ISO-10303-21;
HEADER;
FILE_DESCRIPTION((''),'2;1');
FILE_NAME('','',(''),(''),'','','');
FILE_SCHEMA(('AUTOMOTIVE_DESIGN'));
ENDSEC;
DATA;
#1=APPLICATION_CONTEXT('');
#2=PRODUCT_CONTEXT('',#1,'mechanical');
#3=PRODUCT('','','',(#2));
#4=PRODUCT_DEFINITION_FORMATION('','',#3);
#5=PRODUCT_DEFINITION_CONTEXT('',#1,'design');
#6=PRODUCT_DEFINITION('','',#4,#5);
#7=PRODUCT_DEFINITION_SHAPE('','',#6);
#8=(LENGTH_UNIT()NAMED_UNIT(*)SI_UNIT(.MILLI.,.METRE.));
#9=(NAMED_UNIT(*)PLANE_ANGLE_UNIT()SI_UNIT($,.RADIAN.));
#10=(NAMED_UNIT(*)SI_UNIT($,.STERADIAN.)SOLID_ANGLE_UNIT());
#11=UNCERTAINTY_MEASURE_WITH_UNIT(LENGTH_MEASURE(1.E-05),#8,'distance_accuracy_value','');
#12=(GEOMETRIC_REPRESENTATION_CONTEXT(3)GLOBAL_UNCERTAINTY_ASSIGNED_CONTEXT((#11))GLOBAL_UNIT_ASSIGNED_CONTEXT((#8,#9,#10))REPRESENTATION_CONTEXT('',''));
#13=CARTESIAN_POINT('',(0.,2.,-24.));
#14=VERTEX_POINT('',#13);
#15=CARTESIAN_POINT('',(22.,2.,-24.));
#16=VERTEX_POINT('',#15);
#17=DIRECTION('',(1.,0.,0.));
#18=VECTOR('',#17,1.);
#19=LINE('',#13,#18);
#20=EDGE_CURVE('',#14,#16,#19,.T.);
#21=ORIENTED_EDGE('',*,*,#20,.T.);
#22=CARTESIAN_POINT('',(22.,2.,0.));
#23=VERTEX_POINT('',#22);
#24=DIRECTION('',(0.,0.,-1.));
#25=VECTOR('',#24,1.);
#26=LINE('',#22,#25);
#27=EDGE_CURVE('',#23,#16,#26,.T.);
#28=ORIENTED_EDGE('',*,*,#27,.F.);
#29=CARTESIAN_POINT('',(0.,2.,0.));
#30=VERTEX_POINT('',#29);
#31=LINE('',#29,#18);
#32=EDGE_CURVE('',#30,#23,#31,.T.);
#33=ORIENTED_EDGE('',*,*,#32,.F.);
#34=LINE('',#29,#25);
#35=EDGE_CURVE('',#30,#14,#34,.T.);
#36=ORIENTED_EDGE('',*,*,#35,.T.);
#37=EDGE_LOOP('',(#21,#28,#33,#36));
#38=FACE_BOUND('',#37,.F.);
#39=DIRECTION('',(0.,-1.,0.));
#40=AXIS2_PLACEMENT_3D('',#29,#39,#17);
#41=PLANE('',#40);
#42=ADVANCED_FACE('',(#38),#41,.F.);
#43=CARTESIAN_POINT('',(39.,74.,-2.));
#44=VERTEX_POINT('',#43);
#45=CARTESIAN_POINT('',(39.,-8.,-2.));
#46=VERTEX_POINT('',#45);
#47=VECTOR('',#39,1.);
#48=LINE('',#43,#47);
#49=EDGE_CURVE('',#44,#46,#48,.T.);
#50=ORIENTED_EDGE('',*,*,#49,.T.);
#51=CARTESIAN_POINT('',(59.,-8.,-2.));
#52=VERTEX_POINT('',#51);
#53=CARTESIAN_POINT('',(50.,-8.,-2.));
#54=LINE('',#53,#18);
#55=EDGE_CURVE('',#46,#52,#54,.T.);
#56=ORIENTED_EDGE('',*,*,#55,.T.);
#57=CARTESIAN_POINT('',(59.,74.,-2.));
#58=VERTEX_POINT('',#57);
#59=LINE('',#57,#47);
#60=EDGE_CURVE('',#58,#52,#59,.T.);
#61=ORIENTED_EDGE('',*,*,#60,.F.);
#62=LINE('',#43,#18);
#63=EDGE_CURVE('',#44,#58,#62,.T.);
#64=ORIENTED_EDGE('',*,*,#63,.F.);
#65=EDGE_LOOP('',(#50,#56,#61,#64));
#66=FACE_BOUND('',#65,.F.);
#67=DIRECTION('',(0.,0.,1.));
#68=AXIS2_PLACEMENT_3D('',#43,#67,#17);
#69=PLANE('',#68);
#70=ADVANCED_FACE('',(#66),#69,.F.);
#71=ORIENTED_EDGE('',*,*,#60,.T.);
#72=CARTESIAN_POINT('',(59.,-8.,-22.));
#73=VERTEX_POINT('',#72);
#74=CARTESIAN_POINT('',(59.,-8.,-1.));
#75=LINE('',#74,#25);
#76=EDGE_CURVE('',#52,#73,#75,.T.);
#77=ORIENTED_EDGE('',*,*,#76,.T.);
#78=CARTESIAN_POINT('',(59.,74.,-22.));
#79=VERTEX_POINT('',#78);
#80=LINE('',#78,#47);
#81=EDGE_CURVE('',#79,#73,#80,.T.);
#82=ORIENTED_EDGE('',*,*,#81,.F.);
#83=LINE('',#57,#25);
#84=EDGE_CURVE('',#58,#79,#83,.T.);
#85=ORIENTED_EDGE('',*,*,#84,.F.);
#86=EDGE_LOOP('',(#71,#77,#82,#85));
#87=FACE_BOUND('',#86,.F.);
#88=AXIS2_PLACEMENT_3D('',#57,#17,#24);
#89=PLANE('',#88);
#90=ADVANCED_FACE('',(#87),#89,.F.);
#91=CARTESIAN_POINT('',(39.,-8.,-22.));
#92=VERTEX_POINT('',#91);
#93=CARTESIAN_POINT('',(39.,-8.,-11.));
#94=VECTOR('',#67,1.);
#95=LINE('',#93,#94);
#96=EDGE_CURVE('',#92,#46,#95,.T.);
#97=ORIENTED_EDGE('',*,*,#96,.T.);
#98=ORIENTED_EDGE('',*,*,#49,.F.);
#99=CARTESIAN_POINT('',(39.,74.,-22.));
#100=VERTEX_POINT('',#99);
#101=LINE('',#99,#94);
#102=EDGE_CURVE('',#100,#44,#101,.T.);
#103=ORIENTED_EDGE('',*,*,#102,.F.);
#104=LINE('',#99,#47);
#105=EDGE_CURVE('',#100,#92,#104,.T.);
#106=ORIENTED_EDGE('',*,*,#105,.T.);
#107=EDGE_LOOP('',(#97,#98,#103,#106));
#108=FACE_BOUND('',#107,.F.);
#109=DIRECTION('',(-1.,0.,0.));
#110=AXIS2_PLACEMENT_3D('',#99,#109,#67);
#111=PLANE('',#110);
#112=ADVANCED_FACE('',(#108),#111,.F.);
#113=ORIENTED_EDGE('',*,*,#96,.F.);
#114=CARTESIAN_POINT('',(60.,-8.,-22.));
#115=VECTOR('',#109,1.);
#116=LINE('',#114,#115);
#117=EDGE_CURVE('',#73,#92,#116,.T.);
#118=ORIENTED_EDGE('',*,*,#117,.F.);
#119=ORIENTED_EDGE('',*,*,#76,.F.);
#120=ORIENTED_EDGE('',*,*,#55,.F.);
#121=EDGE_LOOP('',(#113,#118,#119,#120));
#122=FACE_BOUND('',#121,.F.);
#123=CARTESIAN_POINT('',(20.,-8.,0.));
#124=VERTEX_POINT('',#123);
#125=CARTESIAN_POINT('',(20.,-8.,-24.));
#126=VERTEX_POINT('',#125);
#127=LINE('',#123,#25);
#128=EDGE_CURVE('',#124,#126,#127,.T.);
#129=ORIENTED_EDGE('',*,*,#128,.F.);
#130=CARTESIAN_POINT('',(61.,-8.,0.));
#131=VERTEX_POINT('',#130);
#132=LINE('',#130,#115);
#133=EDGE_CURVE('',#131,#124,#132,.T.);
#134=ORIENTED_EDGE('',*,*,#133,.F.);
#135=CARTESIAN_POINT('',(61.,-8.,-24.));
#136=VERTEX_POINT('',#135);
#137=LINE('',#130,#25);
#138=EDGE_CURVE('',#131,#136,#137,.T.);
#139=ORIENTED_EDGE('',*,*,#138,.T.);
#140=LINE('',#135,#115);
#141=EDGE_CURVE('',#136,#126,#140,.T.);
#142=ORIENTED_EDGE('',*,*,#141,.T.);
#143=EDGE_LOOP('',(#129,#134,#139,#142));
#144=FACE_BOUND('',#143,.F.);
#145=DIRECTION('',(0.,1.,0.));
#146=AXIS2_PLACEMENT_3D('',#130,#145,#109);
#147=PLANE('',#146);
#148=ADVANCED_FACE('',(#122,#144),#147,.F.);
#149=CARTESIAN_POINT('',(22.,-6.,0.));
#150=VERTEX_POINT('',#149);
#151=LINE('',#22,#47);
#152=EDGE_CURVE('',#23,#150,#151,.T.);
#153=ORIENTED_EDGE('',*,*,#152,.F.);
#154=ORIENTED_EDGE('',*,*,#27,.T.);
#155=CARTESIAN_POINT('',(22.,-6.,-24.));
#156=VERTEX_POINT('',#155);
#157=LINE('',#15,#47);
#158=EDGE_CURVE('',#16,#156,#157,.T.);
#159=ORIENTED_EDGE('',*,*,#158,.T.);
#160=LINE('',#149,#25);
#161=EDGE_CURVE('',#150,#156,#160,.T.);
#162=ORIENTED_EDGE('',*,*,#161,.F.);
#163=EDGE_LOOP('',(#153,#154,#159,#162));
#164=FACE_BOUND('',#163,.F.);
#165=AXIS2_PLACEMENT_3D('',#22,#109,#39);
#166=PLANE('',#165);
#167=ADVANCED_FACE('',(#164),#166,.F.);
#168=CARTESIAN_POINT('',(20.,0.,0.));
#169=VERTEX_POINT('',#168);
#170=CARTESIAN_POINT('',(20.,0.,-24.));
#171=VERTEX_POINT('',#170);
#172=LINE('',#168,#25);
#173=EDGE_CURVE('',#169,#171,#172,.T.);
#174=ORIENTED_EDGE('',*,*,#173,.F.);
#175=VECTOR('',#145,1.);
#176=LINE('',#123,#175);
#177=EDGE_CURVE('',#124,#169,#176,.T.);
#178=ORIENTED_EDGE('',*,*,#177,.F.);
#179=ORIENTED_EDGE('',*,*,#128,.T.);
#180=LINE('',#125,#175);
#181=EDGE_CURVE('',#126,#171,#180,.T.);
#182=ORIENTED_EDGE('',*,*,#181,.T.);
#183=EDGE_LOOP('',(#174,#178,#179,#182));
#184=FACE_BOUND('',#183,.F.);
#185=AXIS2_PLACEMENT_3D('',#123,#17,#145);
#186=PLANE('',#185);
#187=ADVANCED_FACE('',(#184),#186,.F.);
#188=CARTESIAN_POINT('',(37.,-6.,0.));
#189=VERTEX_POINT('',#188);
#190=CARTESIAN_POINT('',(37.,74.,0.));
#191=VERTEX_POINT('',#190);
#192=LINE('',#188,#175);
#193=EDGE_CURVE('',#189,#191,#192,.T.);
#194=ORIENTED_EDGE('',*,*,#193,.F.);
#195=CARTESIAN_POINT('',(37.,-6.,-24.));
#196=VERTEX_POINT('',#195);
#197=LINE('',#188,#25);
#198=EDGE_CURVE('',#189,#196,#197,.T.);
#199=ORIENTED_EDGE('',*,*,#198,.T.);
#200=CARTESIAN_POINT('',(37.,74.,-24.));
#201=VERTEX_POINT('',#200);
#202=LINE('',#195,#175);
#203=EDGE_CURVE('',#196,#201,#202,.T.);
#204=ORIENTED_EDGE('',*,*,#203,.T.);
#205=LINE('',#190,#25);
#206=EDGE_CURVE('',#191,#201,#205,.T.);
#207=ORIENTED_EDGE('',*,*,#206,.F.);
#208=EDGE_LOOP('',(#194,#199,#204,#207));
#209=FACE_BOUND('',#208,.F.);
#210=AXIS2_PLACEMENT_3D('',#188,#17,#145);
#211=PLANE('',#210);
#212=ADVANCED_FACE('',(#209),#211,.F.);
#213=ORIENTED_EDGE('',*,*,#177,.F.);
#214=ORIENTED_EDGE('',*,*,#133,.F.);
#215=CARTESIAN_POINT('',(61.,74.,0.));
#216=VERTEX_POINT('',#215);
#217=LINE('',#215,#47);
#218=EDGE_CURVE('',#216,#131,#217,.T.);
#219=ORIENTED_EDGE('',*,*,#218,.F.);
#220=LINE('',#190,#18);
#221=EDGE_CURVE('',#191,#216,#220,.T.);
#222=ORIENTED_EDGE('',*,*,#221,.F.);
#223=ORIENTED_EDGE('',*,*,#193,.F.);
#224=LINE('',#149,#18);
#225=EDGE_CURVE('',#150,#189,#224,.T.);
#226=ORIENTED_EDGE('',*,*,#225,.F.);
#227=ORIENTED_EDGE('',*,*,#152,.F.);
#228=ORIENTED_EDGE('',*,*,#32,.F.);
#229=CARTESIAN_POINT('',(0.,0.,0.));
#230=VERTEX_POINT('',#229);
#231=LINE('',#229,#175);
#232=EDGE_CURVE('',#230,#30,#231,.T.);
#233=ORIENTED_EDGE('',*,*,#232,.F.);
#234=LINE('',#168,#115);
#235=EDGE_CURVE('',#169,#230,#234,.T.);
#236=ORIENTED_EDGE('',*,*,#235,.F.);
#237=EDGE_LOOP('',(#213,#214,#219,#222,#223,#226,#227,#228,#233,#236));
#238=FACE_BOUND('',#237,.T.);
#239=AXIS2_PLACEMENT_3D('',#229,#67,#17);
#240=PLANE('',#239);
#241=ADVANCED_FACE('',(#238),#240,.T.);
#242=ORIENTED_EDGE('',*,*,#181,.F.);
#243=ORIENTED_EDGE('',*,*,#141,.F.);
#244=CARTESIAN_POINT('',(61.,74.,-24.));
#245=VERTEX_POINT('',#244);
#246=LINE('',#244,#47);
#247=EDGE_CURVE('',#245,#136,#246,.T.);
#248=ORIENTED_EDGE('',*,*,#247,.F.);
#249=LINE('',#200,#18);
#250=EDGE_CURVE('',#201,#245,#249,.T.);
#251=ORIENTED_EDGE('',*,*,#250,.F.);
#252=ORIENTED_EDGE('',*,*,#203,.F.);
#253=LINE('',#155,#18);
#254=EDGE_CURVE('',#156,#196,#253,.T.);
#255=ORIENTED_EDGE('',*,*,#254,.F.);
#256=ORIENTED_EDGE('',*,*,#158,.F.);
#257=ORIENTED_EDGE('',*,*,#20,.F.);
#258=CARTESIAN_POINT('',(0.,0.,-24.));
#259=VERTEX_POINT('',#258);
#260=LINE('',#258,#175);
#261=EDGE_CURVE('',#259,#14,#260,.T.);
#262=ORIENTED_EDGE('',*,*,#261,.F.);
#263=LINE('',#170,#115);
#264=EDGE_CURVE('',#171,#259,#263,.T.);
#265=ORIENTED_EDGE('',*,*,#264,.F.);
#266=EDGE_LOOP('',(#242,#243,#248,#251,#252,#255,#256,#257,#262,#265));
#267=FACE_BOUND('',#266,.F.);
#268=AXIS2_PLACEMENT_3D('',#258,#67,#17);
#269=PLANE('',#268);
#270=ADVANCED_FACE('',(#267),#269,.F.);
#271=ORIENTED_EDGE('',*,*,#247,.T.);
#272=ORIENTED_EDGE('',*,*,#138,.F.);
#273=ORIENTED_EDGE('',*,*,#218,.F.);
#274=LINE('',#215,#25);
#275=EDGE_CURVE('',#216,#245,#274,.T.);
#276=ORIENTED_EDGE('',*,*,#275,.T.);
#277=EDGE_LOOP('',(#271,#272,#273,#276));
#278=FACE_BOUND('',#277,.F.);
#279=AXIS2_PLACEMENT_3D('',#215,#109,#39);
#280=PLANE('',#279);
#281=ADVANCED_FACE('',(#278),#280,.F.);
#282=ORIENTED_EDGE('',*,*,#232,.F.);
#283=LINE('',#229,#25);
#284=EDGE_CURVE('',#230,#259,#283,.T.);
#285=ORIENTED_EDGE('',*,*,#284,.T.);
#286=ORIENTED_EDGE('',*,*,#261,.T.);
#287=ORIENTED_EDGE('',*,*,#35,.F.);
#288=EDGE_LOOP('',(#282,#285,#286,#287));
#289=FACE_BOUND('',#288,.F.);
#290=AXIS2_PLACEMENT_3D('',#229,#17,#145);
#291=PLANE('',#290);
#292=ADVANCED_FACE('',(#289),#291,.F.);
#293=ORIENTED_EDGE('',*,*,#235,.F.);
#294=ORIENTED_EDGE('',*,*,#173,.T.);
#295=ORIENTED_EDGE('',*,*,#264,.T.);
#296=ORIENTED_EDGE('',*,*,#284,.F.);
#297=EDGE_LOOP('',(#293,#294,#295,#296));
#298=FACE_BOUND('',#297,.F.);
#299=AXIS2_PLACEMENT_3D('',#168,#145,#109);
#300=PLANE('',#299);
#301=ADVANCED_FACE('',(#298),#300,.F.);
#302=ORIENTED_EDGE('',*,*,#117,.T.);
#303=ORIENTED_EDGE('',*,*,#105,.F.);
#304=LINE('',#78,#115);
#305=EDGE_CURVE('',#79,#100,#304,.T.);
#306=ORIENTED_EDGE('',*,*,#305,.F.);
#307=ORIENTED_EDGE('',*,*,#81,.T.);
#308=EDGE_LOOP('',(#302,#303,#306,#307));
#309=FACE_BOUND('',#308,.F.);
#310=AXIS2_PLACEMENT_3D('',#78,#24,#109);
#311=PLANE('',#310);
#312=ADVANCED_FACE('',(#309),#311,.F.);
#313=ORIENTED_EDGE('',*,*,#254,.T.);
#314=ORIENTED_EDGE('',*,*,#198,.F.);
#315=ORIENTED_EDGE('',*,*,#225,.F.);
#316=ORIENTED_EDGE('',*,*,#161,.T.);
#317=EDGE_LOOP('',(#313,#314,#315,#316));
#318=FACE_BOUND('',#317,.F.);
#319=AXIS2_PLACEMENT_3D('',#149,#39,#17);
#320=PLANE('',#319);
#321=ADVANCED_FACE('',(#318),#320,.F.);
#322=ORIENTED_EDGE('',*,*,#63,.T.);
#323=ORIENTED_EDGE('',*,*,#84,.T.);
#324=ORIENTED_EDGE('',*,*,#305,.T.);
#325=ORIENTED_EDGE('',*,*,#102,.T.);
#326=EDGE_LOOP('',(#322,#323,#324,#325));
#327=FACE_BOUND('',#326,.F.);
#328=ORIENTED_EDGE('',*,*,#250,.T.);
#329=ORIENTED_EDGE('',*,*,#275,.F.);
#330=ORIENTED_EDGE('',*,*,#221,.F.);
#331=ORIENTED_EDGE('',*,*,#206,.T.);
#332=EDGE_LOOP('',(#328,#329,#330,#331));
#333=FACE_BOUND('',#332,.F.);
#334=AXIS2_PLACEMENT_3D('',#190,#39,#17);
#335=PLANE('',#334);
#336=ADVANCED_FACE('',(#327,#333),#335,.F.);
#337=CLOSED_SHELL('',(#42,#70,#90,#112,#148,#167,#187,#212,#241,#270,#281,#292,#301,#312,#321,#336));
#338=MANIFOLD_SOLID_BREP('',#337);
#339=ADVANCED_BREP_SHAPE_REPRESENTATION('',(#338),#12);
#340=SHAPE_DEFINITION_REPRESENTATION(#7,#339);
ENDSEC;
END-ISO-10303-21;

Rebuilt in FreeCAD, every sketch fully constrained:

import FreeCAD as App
import Part
import Sketcher
from FreeCAD import Vector

doc = App.newDocument("Part")
params = doc.addObject("Spreadsheet::Sheet", "Params")
for row, (alias, value) in enumerate([
    ("sketch1_width", "41 mm"),
    ("sketch1_width2", "24 mm"),
    ("sketch1_width3", "15 mm"),
    ("sketch1_width4", "22 mm"),
    ("sketch1_height", "2 mm"),
    ("pad1_length", "24 mm"),
    ("sketch2_width", "20 mm"),
    ("pocket1_length", "200 mm"),
], start=1):
    params.set(f"A{row}", alias)
    params.set(f"B{row}", "=" + value)
    params.setAlias(f"B{row}", alias)

body = doc.addObject("PartDesign::Body", "Body")

# Sketch on XY plane
sketch1 = body.newObject("Sketcher::SketchObject", "Sketch")
sketch1.AttachmentSupport = (doc.getObject("XY_Plane"), [""])
sketch1.MapMode = "FlatFace"
sketch1.addGeometry([
    Part.LineSegment(Vector(0, 2, 0), Vector(0, 0, 0)),  # 0
    Part.LineSegment(Vector(0, 0, 0), Vector(20, 0, 0)),  # 1
    Part.LineSegment(Vector(20, 0, 0), Vector(20, -8, 0)),  # 2
    Part.LineSegment(Vector(20, -8, 0), Vector(61, -8, 0)),  # 3
    Part.LineSegment(Vector(61, -8, 0), Vector(61, 74, 0)),  # 4
    Part.LineSegment(Vector(61, 74, 0), Vector(37, 74, 0)),  # 5
    Part.LineSegment(Vector(37, 74, 0), Vector(37, -6, 0)),  # 6
    Part.LineSegment(Vector(37, -6, 0), Vector(22, -6, 0)),  # 7
    Part.LineSegment(Vector(22, -6, 0), Vector(22, 2, 0)),  # 8
    Part.LineSegment(Vector(22, 2, 0), Vector(0, 2, 0)),  # 9
], False)
sketch1.addConstraint([
    Sketcher.Constraint("Coincident", 0, 2, 1, 1),
    Sketcher.Constraint("Coincident", 1, 2, 2, 1),
    Sketcher.Constraint("Coincident", 2, 2, 3, 1),
    Sketcher.Constraint("Coincident", 3, 2, 4, 1),
    Sketcher.Constraint("Coincident", 4, 2, 5, 1),
    Sketcher.Constraint("Coincident", 5, 2, 6, 1),
    Sketcher.Constraint("Coincident", 6, 2, 7, 1),
    Sketcher.Constraint("Coincident", 7, 2, 8, 1),
    Sketcher.Constraint("Coincident", 8, 2, 9, 1),
    Sketcher.Constraint("Coincident", 9, 2, 0, 1),
    Sketcher.Constraint("Vertical", 0),
    Sketcher.Constraint("Horizontal", 1),
    Sketcher.Constraint("Vertical", 2),
    Sketcher.Constraint("Horizontal", 3),
    Sketcher.Constraint("Vertical", 4),
    Sketcher.Constraint("Horizontal", 5),
    Sketcher.Constraint("Vertical", 6),
    Sketcher.Constraint("Horizontal", 7),
    Sketcher.Constraint("Vertical", 8),
    Sketcher.Constraint("Horizontal", 9),
    Sketcher.Constraint("Coincident", 0, 2, -1, 1),
    Sketcher.Constraint("Equal", 2, 8),
    Sketcher.Constraint("DistanceX", 3, 1, 3, 2, 41.0),
    Sketcher.Constraint("DistanceX", 5, 2, 5, 1, 24.0),
    Sketcher.Constraint("DistanceX", 7, 2, 7, 1, 15.0),
    Sketcher.Constraint("DistanceX", 9, 2, 9, 1, 22.0),
    Sketcher.Constraint("DistanceY", 0, 2, 0, 1, 2.0),
    Sketcher.Constraint("DistanceY", 2, 2, 2, 1, 8.0),
    Sketcher.Constraint("DistanceY", 4, 1, 4, 2, 82.0),
])
sketch1.setExpression("Constraints[22]", "Params.sketch1_width")
sketch1.setExpression("Constraints[23]", "Params.sketch1_width2")
sketch1.setExpression("Constraints[24]", "Params.sketch1_width3")
sketch1.setExpression("Constraints[25]", "Params.sketch1_width4")
sketch1.setExpression("Constraints[26]", "Params.sketch1_height")
pad1 = body.newObject("PartDesign::Pad", "Pad")
pad1.Profile = sketch1
pad1.setExpression("Length", "Params.pad1_length")
pad1.Reversed = True

# Sketch on XZ plane
sketch2 = body.newObject("Sketcher::SketchObject", "Sketch001")
sketch2.AttachmentSupport = (doc.getObject("XZ_Plane"), [""])
sketch2.MapMode = "FlatFace"
sketch2.AttachmentOffset = App.Placement(Vector(0, 0, -74), App.Rotation())
sketch2.addGeometry([
    Part.LineSegment(Vector(39, -22, 0), Vector(39, -2, 0)),
    Part.LineSegment(Vector(39, -2, 0), Vector(59, -2, 0)),
    Part.LineSegment(Vector(59, -2, 0), Vector(59, -22, 0)),
    Part.LineSegment(Vector(59, -22, 0), Vector(39, -22, 0)),
], False)
sketch2.addConstraint([
    Sketcher.Constraint("Coincident", 0, 2, 1, 1),
    Sketcher.Constraint("Coincident", 1, 2, 2, 1),
    Sketcher.Constraint("Coincident", 2, 2, 3, 1),
    Sketcher.Constraint("Coincident", 3, 2, 0, 1),
    Sketcher.Constraint("Vertical", 0),
    Sketcher.Constraint("Horizontal", 1),
    Sketcher.Constraint("Vertical", 2),
    Sketcher.Constraint("Horizontal", 3),
    Sketcher.Constraint("Equal", 3, 0),
    Sketcher.Constraint("DistanceX", 1, 1, 1, 2, 20.0),
    Sketcher.Constraint("DistanceX", -1, 1, 0, 2, 39.0),
    Sketcher.Constraint("DistanceY", 0, 2, -1, 1, 2.0),
])
sketch2.setExpression("Constraints[9]", "Params.sketch2_width")
pocket1 = body.newObject("PartDesign::Pocket", "Pocket")
pocket1.Profile = sketch2
pocket1.setExpression("Length", "Params.pocket1_length")
pocket1.Reversed = True

doc.recompute()
